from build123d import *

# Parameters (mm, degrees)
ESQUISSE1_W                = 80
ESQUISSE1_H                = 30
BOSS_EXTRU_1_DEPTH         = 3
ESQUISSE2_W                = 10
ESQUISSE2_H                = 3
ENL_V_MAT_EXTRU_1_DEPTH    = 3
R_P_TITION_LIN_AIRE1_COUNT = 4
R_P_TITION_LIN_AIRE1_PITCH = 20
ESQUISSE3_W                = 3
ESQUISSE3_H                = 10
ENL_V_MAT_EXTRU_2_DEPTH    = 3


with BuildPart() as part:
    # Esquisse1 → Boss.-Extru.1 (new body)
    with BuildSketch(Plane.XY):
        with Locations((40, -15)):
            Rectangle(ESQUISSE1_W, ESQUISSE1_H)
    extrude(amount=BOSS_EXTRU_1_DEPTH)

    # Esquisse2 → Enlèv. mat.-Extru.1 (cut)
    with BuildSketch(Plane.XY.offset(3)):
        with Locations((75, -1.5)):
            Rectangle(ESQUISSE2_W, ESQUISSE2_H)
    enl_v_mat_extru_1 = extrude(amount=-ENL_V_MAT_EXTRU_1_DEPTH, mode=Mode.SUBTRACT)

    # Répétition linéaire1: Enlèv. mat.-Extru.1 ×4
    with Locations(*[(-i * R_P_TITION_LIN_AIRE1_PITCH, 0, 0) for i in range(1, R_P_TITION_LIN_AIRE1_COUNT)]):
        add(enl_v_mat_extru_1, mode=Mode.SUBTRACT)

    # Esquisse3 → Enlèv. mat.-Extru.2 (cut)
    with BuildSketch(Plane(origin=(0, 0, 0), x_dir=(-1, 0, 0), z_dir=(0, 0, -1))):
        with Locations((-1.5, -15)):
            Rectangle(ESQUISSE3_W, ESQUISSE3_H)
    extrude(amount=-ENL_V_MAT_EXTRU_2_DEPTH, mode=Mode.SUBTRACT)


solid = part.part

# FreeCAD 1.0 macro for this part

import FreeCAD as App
import Part
import Sketcher
from FreeCAD import Vector


def add_polygon(sketch, points):
    """Adds a closed chain of lines whose ends are joined by coincident constraints."""
    first, n = sketch.GeometryCount, len(points)
    for a, b in zip(points, points[1:] + points[:1]):
        sketch.addGeometry(Part.LineSegment(App.Vector(*a, 0), App.Vector(*b, 0)), False)
    for i in range(n):
        sketch.addConstraint(Sketcher.Constraint("Coincident", first + i, 2, first + (i + 1) % n, 1))

doc = App.newDocument("Part")
body = doc.addObject("PartDesign::Body", "Body")

# Sketch on XY plane
sketch1 = body.newObject("Sketcher::SketchObject", "Sketch")
sketch1.AttachmentSupport = (doc.getObject("XY_Plane"), [""])
sketch1.MapMode = "FlatFace"
add_polygon(sketch1, [(0, 0), (0, -30), (80, -30), (80, 0)])  # lines 0-3
sketch1.addConstraint(Sketcher.Constraint("Vertical", 0))
sketch1.addConstraint(Sketcher.Constraint("Horizontal", 1))
sketch1.addConstraint(Sketcher.Constraint("Vertical", 2))
sketch1.addConstraint(Sketcher.Constraint("Horizontal", 3))
sketch1.addConstraint(Sketcher.Constraint("Coincident", 3, 2, -1, 1))
sketch1.addConstraint(Sketcher.Constraint("DistanceX", 1, 1, 1, 2, 80.0))
sketch1.addConstraint(Sketcher.Constraint("DistanceY", 0, 2, 0, 1, 30.0))
pad1 = body.newObject("PartDesign::Pad", "Pad")
pad1.Profile = sketch1
pad1.Length = 3

# Sketch on XY plane
sketch2 = body.newObject("Sketcher::SketchObject", "Sketch001")
sketch2.AttachmentSupport = (doc.getObject("XY_Plane"), [""])
sketch2.MapMode = "FlatFace"
sketch2.AttachmentOffset = App.Placement(Vector(0, 0, 3), App.Rotation())
add_polygon(sketch2, [(70, 0), (70, -3), (80, -3), (80, 0)])  # lines 0-3
sketch2.addConstraint(Sketcher.Constraint("Vertical", 0))
sketch2.addConstraint(Sketcher.Constraint("Horizontal", 1))
sketch2.addConstraint(Sketcher.Constraint("Vertical", 2))
sketch2.addConstraint(Sketcher.Constraint("Horizontal", 3))
sketch2.addConstraint(Sketcher.Constraint("PointOnObject", 2, 2, -1))
sketch2.addConstraint(Sketcher.Constraint("DistanceX", 1, 1, 1, 2, 10.0))
sketch2.addConstraint(Sketcher.Constraint("DistanceY", 0, 2, 0, 1, 3.0))
sketch2.addConstraint(Sketcher.Constraint("DistanceX", -1, 1, 0, 2, 70.0))
pocket1 = body.newObject("PartDesign::Pocket", "Pocket")
pocket1.Profile = sketch2
pocket1.Length = 3
doc.recompute()

linearpattern = body.newObject("PartDesign::LinearPattern", "LinearPattern")
linearpattern.Originals = [pocket1]
linearpattern.Direction = (doc.getObject("X_Axis"), [""])
linearpattern.Mode = "offset"
linearpattern.Offset = 20
linearpattern.Occurrences = 4
linearpattern.Reversed = True
body.Tip = linearpattern

# Sketch on XY plane
sketch3 = body.newObject("Sketcher::SketchObject", "Sketch002")
sketch3.AttachmentSupport = (doc.getObject("XY_Plane"), [""])
sketch3.MapMode = "FlatFace"
add_polygon(sketch3, [(3, -10), (3, -20), (0, -20), (0, -10)])  # lines 0-3
sketch3.addConstraint(Sketcher.Constraint("Vertical", 0))
sketch3.addConstraint(Sketcher.Constraint("Horizontal", 1))
sketch3.addConstraint(Sketcher.Constraint("Vertical", 2))
sketch3.addConstraint(Sketcher.Constraint("Horizontal", 3))
sketch3.addConstraint(Sketcher.Constraint("PointOnObject", 1, 2, -2))
sketch3.addConstraint(Sketcher.Constraint("DistanceX", 1, 2, 1, 1, 3.0))
sketch3.addConstraint(Sketcher.Constraint("DistanceY", 0, 2, 0, 1, 10.0))
sketch3.addConstraint(Sketcher.Constraint("DistanceY", 0, 2, -1, 1, 20.0))
pocket2 = body.newObject("PartDesign::Pocket", "Pocket001")
pocket2.Profile = sketch3
pocket2.Length = 3
pocket2.Reversed = True

doc.recompute()
